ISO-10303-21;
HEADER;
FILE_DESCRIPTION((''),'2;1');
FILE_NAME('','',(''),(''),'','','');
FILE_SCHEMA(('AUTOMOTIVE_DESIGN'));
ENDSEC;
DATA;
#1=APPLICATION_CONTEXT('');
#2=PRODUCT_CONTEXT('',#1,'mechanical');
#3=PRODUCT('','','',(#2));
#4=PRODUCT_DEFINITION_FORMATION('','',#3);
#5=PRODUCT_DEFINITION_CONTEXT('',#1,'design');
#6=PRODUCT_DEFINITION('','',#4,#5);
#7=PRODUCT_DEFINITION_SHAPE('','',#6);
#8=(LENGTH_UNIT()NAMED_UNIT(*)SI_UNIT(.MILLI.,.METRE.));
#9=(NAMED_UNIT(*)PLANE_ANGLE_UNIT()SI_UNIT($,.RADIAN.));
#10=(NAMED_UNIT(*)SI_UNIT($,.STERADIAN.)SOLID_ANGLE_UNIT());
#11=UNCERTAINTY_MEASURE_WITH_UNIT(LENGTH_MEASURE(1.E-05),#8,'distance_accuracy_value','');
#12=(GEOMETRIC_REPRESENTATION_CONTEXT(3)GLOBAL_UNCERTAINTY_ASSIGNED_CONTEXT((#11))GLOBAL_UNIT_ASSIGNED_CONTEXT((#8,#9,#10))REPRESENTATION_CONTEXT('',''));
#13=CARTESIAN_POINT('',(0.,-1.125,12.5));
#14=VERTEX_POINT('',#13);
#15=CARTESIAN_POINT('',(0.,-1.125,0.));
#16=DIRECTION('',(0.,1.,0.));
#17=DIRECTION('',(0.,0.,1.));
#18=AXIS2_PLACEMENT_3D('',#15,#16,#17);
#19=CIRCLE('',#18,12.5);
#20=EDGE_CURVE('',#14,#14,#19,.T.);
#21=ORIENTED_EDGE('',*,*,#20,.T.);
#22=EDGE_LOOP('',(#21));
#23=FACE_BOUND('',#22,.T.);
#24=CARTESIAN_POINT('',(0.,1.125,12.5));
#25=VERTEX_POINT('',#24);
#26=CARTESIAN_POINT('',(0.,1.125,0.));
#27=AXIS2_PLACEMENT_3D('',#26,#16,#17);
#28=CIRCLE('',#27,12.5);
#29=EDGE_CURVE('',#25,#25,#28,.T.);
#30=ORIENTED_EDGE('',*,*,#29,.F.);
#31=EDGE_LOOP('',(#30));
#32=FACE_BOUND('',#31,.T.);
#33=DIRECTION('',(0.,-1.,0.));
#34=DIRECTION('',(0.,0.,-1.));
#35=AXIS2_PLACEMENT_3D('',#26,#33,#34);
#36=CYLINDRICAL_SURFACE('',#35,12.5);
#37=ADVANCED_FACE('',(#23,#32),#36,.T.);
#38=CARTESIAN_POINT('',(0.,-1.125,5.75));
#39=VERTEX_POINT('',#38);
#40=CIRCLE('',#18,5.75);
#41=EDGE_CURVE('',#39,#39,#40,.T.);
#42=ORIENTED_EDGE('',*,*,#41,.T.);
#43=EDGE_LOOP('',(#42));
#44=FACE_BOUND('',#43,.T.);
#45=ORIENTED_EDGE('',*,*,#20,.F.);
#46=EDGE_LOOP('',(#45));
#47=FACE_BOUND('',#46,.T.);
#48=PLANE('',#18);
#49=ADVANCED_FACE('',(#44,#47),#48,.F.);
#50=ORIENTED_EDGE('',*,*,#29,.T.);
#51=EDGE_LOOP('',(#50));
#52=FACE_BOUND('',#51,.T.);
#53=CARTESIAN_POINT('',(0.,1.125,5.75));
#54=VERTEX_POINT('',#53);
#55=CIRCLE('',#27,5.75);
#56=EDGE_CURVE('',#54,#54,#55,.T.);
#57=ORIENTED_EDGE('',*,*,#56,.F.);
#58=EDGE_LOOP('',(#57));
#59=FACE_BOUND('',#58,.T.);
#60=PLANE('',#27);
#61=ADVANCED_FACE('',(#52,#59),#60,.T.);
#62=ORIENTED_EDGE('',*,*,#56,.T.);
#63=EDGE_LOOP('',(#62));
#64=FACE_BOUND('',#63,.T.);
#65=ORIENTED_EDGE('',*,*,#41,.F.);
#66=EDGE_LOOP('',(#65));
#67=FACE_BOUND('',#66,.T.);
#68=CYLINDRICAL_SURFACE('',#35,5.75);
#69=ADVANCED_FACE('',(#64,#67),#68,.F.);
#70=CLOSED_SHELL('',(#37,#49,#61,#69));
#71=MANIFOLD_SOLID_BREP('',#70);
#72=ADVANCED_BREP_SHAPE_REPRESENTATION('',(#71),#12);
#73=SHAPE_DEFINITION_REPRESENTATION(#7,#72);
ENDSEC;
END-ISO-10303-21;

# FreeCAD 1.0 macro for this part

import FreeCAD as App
import Part
import Sketcher
from FreeCAD import Vector

doc = App.newDocument("Part")
body = doc.addObject("PartDesign::Body", "Body")

sketch1 = doc.addObject("Sketcher::SketchObject", "Sketch")
body.addObject(sketch1)
sketch1.AttachmentSupport = (doc.XZ_Plane, [""])
sketch1.MapMode = "FlatFace"
sketch1.addGeometry([
    Part.Circle(Vector(0, 0, 0), Vector(0, 0, 1), 12),
    Part.Circle(Vector(0, 0, 0), Vector(0, 0, 1), 6),
], False)
sketch1.addConstraint([
    Sketcher.Constraint("Coincident", 0, 3, -1, 1),
    Sketcher.Constraint("Coincident", 1, 3, -1, 1),
    Sketcher.Constraint("Diameter", 0, 25.0),
    Sketcher.Constraint("Diameter", 1, 11.5),
])
pad1 = doc.addObject("PartDesign::Pad", "Pad")
body.addObject(pad1)
pad1.Profile = sketch1
pad1.Length = 2.25
pad1.Midplane = True

doc.recompute()
